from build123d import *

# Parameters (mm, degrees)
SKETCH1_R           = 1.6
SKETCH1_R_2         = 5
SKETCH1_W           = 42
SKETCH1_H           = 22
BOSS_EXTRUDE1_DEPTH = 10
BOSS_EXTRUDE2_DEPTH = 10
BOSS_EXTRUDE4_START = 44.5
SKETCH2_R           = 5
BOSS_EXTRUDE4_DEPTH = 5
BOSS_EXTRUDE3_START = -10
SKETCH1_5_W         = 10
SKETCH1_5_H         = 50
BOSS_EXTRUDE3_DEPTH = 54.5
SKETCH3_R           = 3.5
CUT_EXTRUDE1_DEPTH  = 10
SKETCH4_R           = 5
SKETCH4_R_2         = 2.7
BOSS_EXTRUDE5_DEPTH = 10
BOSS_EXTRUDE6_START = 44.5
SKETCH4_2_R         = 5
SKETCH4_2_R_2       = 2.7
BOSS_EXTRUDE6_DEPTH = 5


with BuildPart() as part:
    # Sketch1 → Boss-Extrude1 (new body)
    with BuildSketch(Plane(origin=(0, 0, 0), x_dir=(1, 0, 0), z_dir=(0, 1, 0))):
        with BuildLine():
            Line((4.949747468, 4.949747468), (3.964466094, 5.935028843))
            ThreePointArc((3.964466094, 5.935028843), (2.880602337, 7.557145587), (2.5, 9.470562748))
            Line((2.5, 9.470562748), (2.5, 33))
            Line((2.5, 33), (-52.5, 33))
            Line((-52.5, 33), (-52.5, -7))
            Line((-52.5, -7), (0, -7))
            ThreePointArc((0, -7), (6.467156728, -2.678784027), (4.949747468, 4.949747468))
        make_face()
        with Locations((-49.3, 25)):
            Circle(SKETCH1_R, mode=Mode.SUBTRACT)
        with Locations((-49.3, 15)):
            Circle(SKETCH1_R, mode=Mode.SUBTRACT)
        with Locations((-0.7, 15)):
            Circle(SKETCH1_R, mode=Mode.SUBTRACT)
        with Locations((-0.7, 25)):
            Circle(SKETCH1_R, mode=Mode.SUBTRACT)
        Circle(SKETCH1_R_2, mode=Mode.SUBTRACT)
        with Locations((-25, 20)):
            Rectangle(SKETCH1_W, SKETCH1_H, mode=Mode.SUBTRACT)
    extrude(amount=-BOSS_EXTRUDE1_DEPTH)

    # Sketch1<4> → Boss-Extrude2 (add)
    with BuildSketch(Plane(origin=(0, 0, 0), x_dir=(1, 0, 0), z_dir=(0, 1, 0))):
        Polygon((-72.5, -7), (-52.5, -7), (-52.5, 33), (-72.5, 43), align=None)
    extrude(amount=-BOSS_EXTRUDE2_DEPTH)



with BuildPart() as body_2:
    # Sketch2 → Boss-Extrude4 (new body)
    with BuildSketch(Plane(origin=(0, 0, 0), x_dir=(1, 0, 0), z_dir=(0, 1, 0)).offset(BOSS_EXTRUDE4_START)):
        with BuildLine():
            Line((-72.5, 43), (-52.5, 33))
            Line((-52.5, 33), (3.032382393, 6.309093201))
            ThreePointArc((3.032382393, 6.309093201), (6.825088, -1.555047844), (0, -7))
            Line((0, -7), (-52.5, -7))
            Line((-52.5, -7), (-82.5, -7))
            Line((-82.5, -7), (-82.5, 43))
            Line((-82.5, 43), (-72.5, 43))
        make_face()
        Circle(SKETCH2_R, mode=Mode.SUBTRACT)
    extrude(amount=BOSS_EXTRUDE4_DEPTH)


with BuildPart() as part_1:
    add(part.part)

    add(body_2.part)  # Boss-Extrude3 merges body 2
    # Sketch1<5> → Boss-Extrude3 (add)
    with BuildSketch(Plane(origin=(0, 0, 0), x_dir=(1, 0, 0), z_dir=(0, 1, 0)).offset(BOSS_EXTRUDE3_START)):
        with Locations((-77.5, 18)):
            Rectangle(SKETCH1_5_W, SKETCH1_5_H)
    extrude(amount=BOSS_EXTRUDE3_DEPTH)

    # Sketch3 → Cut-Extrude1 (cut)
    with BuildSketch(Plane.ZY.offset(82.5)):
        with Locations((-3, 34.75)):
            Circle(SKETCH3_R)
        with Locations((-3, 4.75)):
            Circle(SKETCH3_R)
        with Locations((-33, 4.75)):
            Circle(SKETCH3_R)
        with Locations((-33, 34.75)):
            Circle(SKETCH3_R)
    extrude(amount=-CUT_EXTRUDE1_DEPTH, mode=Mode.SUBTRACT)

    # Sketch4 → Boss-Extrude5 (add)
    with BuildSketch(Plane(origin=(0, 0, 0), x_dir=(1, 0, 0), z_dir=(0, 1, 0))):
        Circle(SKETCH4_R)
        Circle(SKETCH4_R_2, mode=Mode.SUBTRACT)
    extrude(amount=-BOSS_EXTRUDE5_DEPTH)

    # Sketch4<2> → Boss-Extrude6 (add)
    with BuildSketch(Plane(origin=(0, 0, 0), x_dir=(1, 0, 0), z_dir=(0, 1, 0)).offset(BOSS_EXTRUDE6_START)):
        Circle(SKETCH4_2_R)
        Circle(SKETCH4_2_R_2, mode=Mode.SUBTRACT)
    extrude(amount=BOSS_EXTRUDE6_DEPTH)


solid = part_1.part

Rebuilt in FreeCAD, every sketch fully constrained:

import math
import FreeCAD as App
import Part
import Sketcher
from FreeCAD import Vector
Q = App.Units.Quantity


def add_polygon(sketch, points):
    """Adds a closed chain of lines whose ends are joined by coincident constraints."""
    first, n = sketch.GeometryCount, len(points)
    for a, b in zip(points, points[1:] + points[:1]):
        sketch.addGeometry(Part.LineSegment(App.Vector(*a, 0), App.Vector(*b, 0)), False)
    for i in range(n):
        sketch.addConstraint(Sketcher.Constraint("Coincident", first + i, 2, first + (i + 1) % n, 1))

doc = App.newDocument("Part")
body = doc.addObject("PartDesign::Body", "Body")

# Sketch on XZ plane
sketch1 = body.newObject("Sketcher::SketchObject", "Sketch")
sketch1.AttachmentSupport = (doc.getObject("XZ_Plane"), [""])
sketch1.MapMode = "FlatFace"
sketch1.addGeometry(Part.LineSegment(Vector(4.949747, -4.949747, 0), Vector(3.964466, -5.935029, 0)), False)  # 0
sketch1.addGeometry(Part.ArcOfCircle(Part.Circle(Vector(7.5, -9.470563, 0), Vector(0, 0, 1), 5), math.radians(135), math.radians(180)), False)  # 1
sketch1.addGeometry(Part.LineSegment(Vector(2.5, -9.470563, 0), Vector(2.5, -33, 0)), False)  # 2
sketch1.addGeometry(Part.LineSegment(Vector(2.5, -33, 0), Vector(-52.5, -33, 0)), False)  # 3
sketch1.addGeometry(Part.LineSegment(Vector(-52.5, -33, 0), Vector(-52.5, 7, 0)), False)  # 4
sketch1.addGeometry(Part.LineSegment(Vector(-52.5, 7, 0), Vector(0, 7, 0)), False)  # 5
sketch1.addGeometry(Part.ArcOfCircle(Part.Circle(Vector(0, 0, 0), Vector(0, 0, 1), 7), math.radians(-45), math.radians(90)), False)  # 6
sketch1.addGeometry(Part.Circle(Vector(0, 0, 0), Vector(0, 0, 1), 5), False)  # 7
sketch1.addGeometry(Part.Circle(Vector(-49.3, -15, 0), Vector(0, 0, 1), 1.6), False)  # 8
add_polygon(sketch1, [(-4, -9), (-46, -9), (-46, -31), (-4, -31)])  # lines 9-12
sketch1.addGeometry(Part.Circle(Vector(-49.3, -25, 0), Vector(0, 0, 1), 1.6), False)  # 13
sketch1.addGeometry(Part.Circle(Vector(-0.7, -15, 0), Vector(0, 0, 1), 1.6), False)  # 14
sketch1.addGeometry(Part.Circle(Vector(-0.7, -25, 0), Vector(0, 0, 1), 1.6), False)  # 15
sketch1.addConstraint([
    Sketcher.Constraint("Tangent", 0, 2, 1, 1),
    Sketcher.Constraint("Tangent", 1, 2, 2, 1),
    Sketcher.Constraint("Coincident", 2, 2, 3, 1),
    Sketcher.Constraint("Coincident", 3, 2, 4, 1),
    Sketcher.Constraint("Coincident", 4, 2, 5, 1),
    Sketcher.Constraint("Tangent", 5, 2, 6, 2),
    Sketcher.Constraint("Tangent", 6, 1, 0, 1),
    Sketcher.Constraint("Vertical", 2),
    Sketcher.Constraint("Horizontal", 3),
    Sketcher.Constraint("Vertical", 4),
    Sketcher.Constraint("Horizontal", 5),
    Sketcher.Constraint("Horizontal", 9),
    Sketcher.Constraint("Vertical", 10),
    Sketcher.Constraint("Horizontal", 11),
    Sketcher.Constraint("Vertical", 12),
    Sketcher.Constraint("Coincident", 6, 3, -1, 1),
    Sketcher.Constraint("Coincident", 7, 3, -1, 1),
    Sketcher.Constraint("Equal", 1, 7),
    Sketcher.Constraint("Equal", 8, 13),
    Sketcher.Constraint("Equal", 13, 14),
    Sketcher.Constraint("Equal", 14, 15),
    Sketcher.Constraint("Horizontal", 8, 3, 14, 3),
    Sketcher.Constraint("Horizontal", 13, 3, 15, 3),
    Sketcher.Constraint("Vertical", 8, 3, 13, 3),
    Sketcher.Constraint("Vertical", 14, 3, 15, 3),
    Sketcher.Constraint("Diameter", 7, Q("10 mm")),
    Sketcher.Constraint("Radius", 6, Q("7 mm")),
    Sketcher.Constraint("Diameter", 8, Q("3.2 mm")),
    Sketcher.Constraint("DistanceX", 3, 2, 3, 1, Q("55 mm")),
    Sketcher.Constraint("DistanceX", 9, 2, 9, 1, Q("42 mm")),
    Sketcher.Constraint("DistanceY", 4, 1, 4, 2, Q("40 mm")),
    Sketcher.Constraint("DistanceY", 10, 2, 10, 1, Q("22 mm")),
    Sketcher.Constraint("Angle", 0, Q("-135 deg")),
    Sketcher.Constraint("DistanceX", 5, 1, 5, 2, Q("52.5 mm")),
    Sketcher.Constraint("DistanceY", 8, 3, -1, 1, Q("15 mm")),
    Sketcher.Constraint("DistanceY", 13, 3, -1, 1, Q("25 mm")),
    Sketcher.Constraint("DistanceX", 9, 2, -1, 1, Q("46 mm")),
    Sketcher.Constraint("DistanceY", 9, 2, -1, 1, Q("9 mm")),
    Sketcher.Constraint("DistanceX", 8, 3, -1, 1, Q("49.3 mm")),
    Sketcher.Constraint("DistanceX", 14, 3, -1, 1, Q("0.7 mm")),
])
pad1 = body.newObject("PartDesign::Pad", "Pad")
pad1.Profile = sketch1
pad1.Length = 10

# Sketch on XZ plane
sketch2 = body.newObject("Sketcher::SketchObject", "Sketch001")
sketch2.AttachmentSupport = (doc.getObject("XZ_Plane"), [""])
sketch2.MapMode = "FlatFace"
add_polygon(sketch2, [(-72.5, 7), (-52.5, 7), (-52.5, -33), (-72.5, -43)])  # lines 0-3
sketch2.addConstraint([
    Sketcher.Constraint("Horizontal", 0),
    Sketcher.Constraint("Vertical", 1),
    Sketcher.Constraint("Vertical", 3),
    Sketcher.Constraint("DistanceX", 0, 1, 0, 2, Q("20 mm")),
    Sketcher.Constraint("DistanceY", 1, 2, 1, 1, Q("40 mm")),
    Sketcher.Constraint("DistanceY", 3, 1, 3, 2, Q("50 mm")),
    Sketcher.Constraint("DistanceY", -1, 1, 0, 2, Q("7 mm")),
    Sketcher.Constraint("DistanceX", 0, 2, -1, 1, Q("52.5 mm")),
])
pad2 = body.newObject("PartDesign::Pad", "Pad001")
pad2.Profile = sketch2
pad2.Length = 10
body2 = doc.addObject("PartDesign::Body", "Body001")

# Sketch on XZ plane
sketch3 = body2.newObject("Sketcher::SketchObject", "Sketch002")
sketch3.AttachmentSupport = (doc.getObject("XZ_Plane001"), [""])
sketch3.MapMode = "FlatFace"
sketch3.AttachmentOffset = App.Placement(Vector(0, 0, -44.5), App.Rotation())
sketch3.addGeometry([
    Part.LineSegment(Vector(-52.5, -33, 0), Vector(-72.5, -43, 0)),  # 0
    Part.LineSegment(Vector(-72.5, -43, 0), Vector(-82.5, -43, 0)),  # 1
    Part.LineSegment(Vector(-82.5, -43, 0), Vector(-82.5, 7, 0)),  # 2
    Part.LineSegment(Vector(-82.5, 7, 0), Vector(0, 7, 0)),  # 3
    Part.ArcOfCircle(Part.Circle(Vector(0, 0, 0), Vector(0, 0, 1), 7), math.radians(-64.329348), math.radians(90)),  # 4
    Part.LineSegment(Vector(3.032382, -6.309093, 0), Vector(-52.5, -33, 0)),  # 5
    Part.Circle(Vector(0, 0, 0), Vector(0, 0, 1), 5),  # 6
], False)
sketch3.addConstraint([
    Sketcher.Constraint("Coincident", 0, 2, 1, 1),
    Sketcher.Constraint("Coincident", 1, 2, 2, 1),
    Sketcher.Constraint("Coincident", 2, 2, 3, 1),
    Sketcher.Constraint("Tangent", 3, 2, 4, 2),
    Sketcher.Constraint("Tangent", 4, 1, 5, 1),
    Sketcher.Constraint("Coincident", 5, 2, 0, 1),
    Sketcher.Constraint("Horizontal", 1),
    Sketcher.Constraint("Vertical", 2),
    Sketcher.Constraint("Horizontal", 3),
    Sketcher.Constraint("Coincident", 4, 3, -1, 1),
    Sketcher.Constraint("Coincident", 6, 3, -1, 1),
    Sketcher.Constraint("Diameter", 6, Q("10 mm")),
    Sketcher.Constraint("Radius", 4, Q("7 mm")),
    Sketcher.Constraint("DistanceX", 1, 2, 1, 1, Q("10 mm")),
    Sketcher.Constraint("DistanceY", 2, 1, 2, 2, Q("50 mm")),
    Sketcher.Constraint("DistanceX", 3, 1, 3, 2, Q("82.5 mm")),
    Sketcher.Constraint("DistanceY", 5, 2, -1, 1, Q("33 mm")),
    Sketcher.Constraint("DistanceX", 0, 2, 5, 2, Q("20 mm")),
])
pad3 = body2.newObject("PartDesign::Pad", "Pad002")
pad3.Profile = sketch3
pad3.Length = 5
pad3.Reversed = True
body.AllowCompound = True
doc.recompute()

boolean = body.newObject("PartDesign::Boolean", "Boolean")
boolean.Type = "Fuse"
boolean.addObjects([body2])

# Sketch on XZ plane
sketch4 = body.newObject("Sketcher::SketchObject", "Sketch003")
sketch4.AttachmentSupport = (doc.getObject("XZ_Plane"), [""])
sketch4.MapMode = "FlatFace"
sketch4.AttachmentOffset = App.Placement(Vector(0, 0, 10), App.Rotation())
add_polygon(sketch4, [(-82.5, -43), (-82.5, 7), (-72.5, 7), (-72.5, -43)])  # lines 0-3
sketch4.addConstraint([
    Sketcher.Constraint("Vertical", 0),
    Sketcher.Constraint("Horizontal", 1),
    Sketcher.Constraint("Vertical", 2),
    Sketcher.Constraint("Horizontal", 3),
    Sketcher.Constraint("DistanceX", 1, 1, 1, 2, Q("10 mm")),
    Sketcher.Constraint("DistanceY", 0, 1, 0, 2, Q("50 mm")),
    Sketcher.Constraint("DistanceY", -1, 1, 0, 2, Q("7 mm")),
    Sketcher.Constraint("DistanceX", 0, 2, -1, 1, Q("82.5 mm")),
])
pad4 = body.newObject("PartDesign::Pad", "Pad003")
pad4.Profile = sketch4
pad4.Length = 54.5
pad4.Reversed = True

# Sketch on YZ plane
sketch5 = body.newObject("Sketcher::SketchObject", "Sketch004")
sketch5.AttachmentSupport = (doc.getObject("YZ_Plane"), [""])
sketch5.MapMode = "FlatFace"
sketch5.AttachmentOffset = App.Placement(Vector(0, 0, -82.5), App.Rotation())
sketch5.addGeometry([
    Part.Circle(Vector(34.75, -3, 0), Vector(0, 0, 1), 3.5),
    Part.Circle(Vector(4.75, -3, 0), Vector(0, 0, 1), 3.5),
    Part.Circle(Vector(4.75, -33, 0), Vector(0, 0, 1), 3.5),
    Part.Circle(Vector(34.75, -33, 0), Vector(0, 0, 1), 3.5),
], False)
sketch5.addConstraint([
    Sketcher.Constraint("Equal", 0, 1),
    Sketcher.Constraint("Equal", 1, 2),
    Sketcher.Constraint("Equal", 2, 3),
    Sketcher.Constraint("Horizontal", 0, 3, 1, 3),
    Sketcher.Constraint("Horizontal", 2, 3, 3, 3),
    Sketcher.Constraint("Vertical", 1, 3, 2, 3),
    Sketcher.Constraint("Vertical", 0, 3, 3, 3),
    Sketcher.Constraint("Diameter", 0, Q("7 mm")),
    Sketcher.Constraint("DistanceY", 0, 3, -1, 1, Q("3 mm")),
    Sketcher.Constraint("DistanceY", 2, 3, -1, 1, Q("33 mm")),
    Sketcher.Constraint("DistanceX", 1, 3, 0, 3, Q("30 mm")),
    Sketcher.Constraint("DistanceX", -1, 1, 0, 3, Q("34.75 mm")),
])
pocket1 = body.newObject("PartDesign::Pocket", "Pocket")
pocket1.Profile = sketch5
pocket1.Length = 10
pocket1.Reversed = True

# Sketch on XZ plane
sketch6 = body.newObject("Sketcher::SketchObject", "Sketch005")
sketch6.AttachmentSupport = (doc.getObject("XZ_Plane"), [""])
sketch6.MapMode = "FlatFace"
sketch6.addGeometry([
    Part.Circle(Vector(0, 0, 0), Vector(0, 0, 1), 5),
    Part.Circle(Vector(0, 0, 0), Vector(0, 0, 1), 2.7),
], False)
sketch6.addConstraint([
    Sketcher.Constraint("Coincident", 0, 3, -1, 1),
    Sketcher.Constraint("Coincident", 1, 3, -1, 1),
    Sketcher.Constraint("Diameter", 0, Q("10 mm")),
    Sketcher.Constraint("Diameter", 1, Q("5.4 mm")),
])
pad5 = body.newObject("PartDesign::Pad", "Pad004")
pad5.Profile = sketch6
pad5.Length = 10

# Sketch on XZ plane
sketch7 = body.newObject("Sketcher::SketchObject", "Sketch006")
sketch7.AttachmentSupport = (doc.getObject("XZ_Plane"), [""])
sketch7.MapMode = "FlatFace"
sketch7.AttachmentOffset = App.Placement(Vector(0, 0, -44.5), App.Rotation())
sketch7.addGeometry([
    Part.Circle(Vector(0, 0, 0), Vector(0, 0, 1), 5),
    Part.Circle(Vector(0, 0, 0), Vector(0, 0, 1), 2.7),
], False)
sketch7.addConstraint([
    Sketcher.Constraint("Coincident", 0, 3, -1, 1),
    Sketcher.Constraint("Coincident", 1, 3, -1, 1),
    Sketcher.Constraint("Diameter", 0, Q("10 mm")),
    Sketcher.Constraint("Diameter", 1, Q("5.4 mm")),
])
pad6 = body.newObject("PartDesign::Pad", "Pad005")
pad6.Profile = sketch7
pad6.Length = 5
pad6.Reversed = True

doc.recompute()
